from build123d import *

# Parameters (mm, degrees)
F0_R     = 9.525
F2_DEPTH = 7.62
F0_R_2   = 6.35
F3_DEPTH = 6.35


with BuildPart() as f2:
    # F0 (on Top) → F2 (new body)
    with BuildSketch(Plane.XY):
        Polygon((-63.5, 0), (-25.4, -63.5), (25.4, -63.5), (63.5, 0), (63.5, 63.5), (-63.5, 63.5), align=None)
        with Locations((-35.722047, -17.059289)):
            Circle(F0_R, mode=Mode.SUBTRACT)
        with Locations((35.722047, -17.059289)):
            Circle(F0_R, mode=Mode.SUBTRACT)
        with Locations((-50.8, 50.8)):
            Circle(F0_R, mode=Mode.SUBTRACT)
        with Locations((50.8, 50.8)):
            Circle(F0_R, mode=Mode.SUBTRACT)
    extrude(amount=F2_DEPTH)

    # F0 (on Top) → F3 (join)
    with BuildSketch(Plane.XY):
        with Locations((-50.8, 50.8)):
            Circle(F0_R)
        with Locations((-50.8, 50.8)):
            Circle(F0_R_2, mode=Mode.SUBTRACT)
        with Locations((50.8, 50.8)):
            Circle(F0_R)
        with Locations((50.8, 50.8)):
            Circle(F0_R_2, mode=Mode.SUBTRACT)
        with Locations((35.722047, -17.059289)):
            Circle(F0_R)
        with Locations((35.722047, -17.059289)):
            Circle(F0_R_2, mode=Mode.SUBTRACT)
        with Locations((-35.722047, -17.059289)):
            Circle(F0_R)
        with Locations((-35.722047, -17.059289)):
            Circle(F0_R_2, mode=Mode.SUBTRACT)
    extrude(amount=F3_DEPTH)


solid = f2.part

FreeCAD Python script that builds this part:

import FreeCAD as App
import Part
import Sketcher
Q = App.Units.Quantity

doc = App.newDocument("Part")
params = doc.addObject("Spreadsheet::Sheet", "Params")
for row, (alias, value) in enumerate([
    ("sketch1_diameter", "0.75 in"),
    ("sketch1_width", "2 in"),
    ("sketch1_width2", "5 in"),
    ("sketch1_height", "2.5 in"),
    ("pad1_length", "0.3 in"),
    ("sketch2_diameter", "0.5 in"),
    ("sketch2_diameter2", "0.75 in"),
    ("pad2_length", "0.25 in"),
], start=1):
    params.set(f"A{row}", alias)
    params.set(f"B{row}", "=" + value)
    params.setAlias(f"B{row}", alias)

body = doc.addObject("PartDesign::Body", "Body")

sketch1 = body.newObject("Sketcher::SketchObject", "Sketch")
sketch1.AttachmentSupport = (doc.getObject("XY_Plane"), [""])
sketch1.MapMode = "FlatFace"
sketch1.addGeometry([
    Part.LineSegment(App.Vector(-64, 0, 0), App.Vector(-25, -64, 0)),
    Part.LineSegment(App.Vector(-25, -64, 0), App.Vector(25, -64, 0)),
    Part.LineSegment(App.Vector(25, -64, 0), App.Vector(64, 0, 0)),
    Part.LineSegment(App.Vector(64, 0, 0), App.Vector(64, 64, 0)),
    Part.LineSegment(App.Vector(64, 64, 0), App.Vector(-64, 64, 0)),
    Part.LineSegment(App.Vector(-64, 64, 0), App.Vector(-64, 0, 0)),
    Part.Circle(App.Vector(-36, -17, 0), App.Vector(0, 0, 1), 10),
    Part.Circle(App.Vector(36, -17, 0), App.Vector(0, 0, 1), 10),
    Part.Circle(App.Vector(-51, 51, 0), App.Vector(0, 0, 1), 10),
    Part.Circle(App.Vector(51, 51, 0), App.Vector(0, 0, 1), 10),
], False)
sketch1.addConstraint([
    Sketcher.Constraint("Coincident", 0, 2, 1, 1),
    Sketcher.Constraint("Coincident", 1, 2, 2, 1),
    Sketcher.Constraint("Coincident", 2, 2, 3, 1),
    Sketcher.Constraint("Coincident", 3, 2, 4, 1),
    Sketcher.Constraint("Coincident", 4, 2, 5, 1),
    Sketcher.Constraint("Coincident", 5, 2, 0, 1),
    Sketcher.Constraint("Horizontal", 1),
    Sketcher.Constraint("Vertical", 3),
    Sketcher.Constraint("Horizontal", 4),
    Sketcher.Constraint("Vertical", 5),
    Sketcher.Constraint("Equal", 6, 7),
    Sketcher.Constraint("Equal", 7, 8),
    Sketcher.Constraint("Equal", 8, 9),
    Sketcher.Constraint("Symmetric", 2, 2, 5, 2, -1, 1),
    Sketcher.Constraint("Symmetric", 6, 3, 7, 3, -2),
    Sketcher.Constraint("Symmetric", 8, 3, 9, 3, -2),
    Sketcher.Constraint("PointOnObject", 2, 2, -1),
    Sketcher.Constraint("Equal", 0, 2),
    Sketcher.Constraint("Diameter", 6, Q("0.75 in")),
    Sketcher.Constraint("DistanceX", 1, 1, 1, 2, Q("2 in")),
    Sketcher.Constraint("DistanceX", 4, 2, 4, 1, Q("5 in")),
    Sketcher.Constraint("DistanceY", 3, 1, 3, 2, Q("2.5 in")),
    Sketcher.Constraint("DistanceX", 8, 3, -1, 1, Q("2 in")),
    Sketcher.Constraint("DistanceY", -1, 1, 8, 3, Q("2 in")),
    Sketcher.Constraint("DistanceY", 0, 2, -1, 1, Q("2.5 in")),
    Sketcher.Constraint("DistanceY", 6, 3, -1, 1, 17.059289),
    Sketcher.Constraint("DistanceX", 6, 3, -1, 1, 35.722047),
])
sketch1.setExpression("Constraints[18]", "Params.sketch1_diameter")
sketch1.setExpression("Constraints[19]", "Params.sketch1_width")
sketch1.setExpression("Constraints[20]", "Params.sketch1_width2")
sketch1.setExpression("Constraints[21]", "Params.sketch1_height")
pad1 = body.newObject("PartDesign::Pad", "Pad")
pad1.Profile = sketch1
pad1.setExpression("Length", "Params.pad1_length")

sketch2 = body.newObject("Sketcher::SketchObject", "Sketch001")
sketch2.AttachmentSupport = (doc.getObject("XY_Plane"), [""])
sketch2.MapMode = "FlatFace"
sketch2.addGeometry([
    Part.Circle(App.Vector(-51, 51, 0), App.Vector(0, 0, 1), 10),
    Part.Circle(App.Vector(-51, 51, 0), App.Vector(0, 0, 1), 6),
    Part.Circle(App.Vector(51, 51, 0), App.Vector(0, 0, 1), 10),
    Part.Circle(App.Vector(51, 51, 0), App.Vector(0, 0, 1), 6),
    Part.Circle(App.Vector(36, -17, 0), App.Vector(0, 0, 1), 10),
    Part.Circle(App.Vector(36, -17, 0), App.Vector(0, 0, 1), 6),
    Part.Circle(App.Vector(-36, -17, 0), App.Vector(0, 0, 1), 10),
    Part.Circle(App.Vector(-36, -17, 0), App.Vector(0, 0, 1), 6),
], False)
sketch2.addConstraint([
    Sketcher.Constraint("Coincident", 1, 3, 0, 3),
    Sketcher.Constraint("Coincident", 3, 3, 2, 3),
    Sketcher.Constraint("Coincident", 5, 3, 4, 3),
    Sketcher.Constraint("Coincident", 7, 3, 6, 3),
    Sketcher.Constraint("Equal", 0, 2),
    Sketcher.Constraint("Equal", 1, 3),
    Sketcher.Constraint("Equal", 2, 4),
    Sketcher.Constraint("Equal", 3, 5),
    Sketcher.Constraint("Equal", 4, 6),
    Sketcher.Constraint("Equal", 5, 7),
    Sketcher.Constraint("Symmetric", 0, 3, 2, 3, -2),
    Sketcher.Constraint("Symmetric", 4, 3, 6, 3, -2),
    Sketcher.Constraint("Diameter", 1, Q("0.5 in")),
    Sketcher.Constraint("Diameter", 0, Q("0.75 in")),
    Sketcher.Constraint("DistanceX", 0, 3, -1, 1, Q("2 in")),
    Sketcher.Constraint("DistanceY", -1, 1, 0, 3, Q("2 in")),
    Sketcher.Constraint("DistanceY", 4, 3, -1, 1, 17.059289),
    Sketcher.Constraint("DistanceX", -1, 1, 4, 3, 35.722047),
])
sketch2.setExpression("Constraints[12]", "Params.sketch2_diameter")
sketch2.setExpression("Constraints[13]", "Params.sketch2_diameter2")
pad2 = body.newObject("PartDesign::Pad", "Pad001")
pad2.Profile = sketch2
pad2.setExpression("Length", "Params.pad2_length")

doc.recompute()
